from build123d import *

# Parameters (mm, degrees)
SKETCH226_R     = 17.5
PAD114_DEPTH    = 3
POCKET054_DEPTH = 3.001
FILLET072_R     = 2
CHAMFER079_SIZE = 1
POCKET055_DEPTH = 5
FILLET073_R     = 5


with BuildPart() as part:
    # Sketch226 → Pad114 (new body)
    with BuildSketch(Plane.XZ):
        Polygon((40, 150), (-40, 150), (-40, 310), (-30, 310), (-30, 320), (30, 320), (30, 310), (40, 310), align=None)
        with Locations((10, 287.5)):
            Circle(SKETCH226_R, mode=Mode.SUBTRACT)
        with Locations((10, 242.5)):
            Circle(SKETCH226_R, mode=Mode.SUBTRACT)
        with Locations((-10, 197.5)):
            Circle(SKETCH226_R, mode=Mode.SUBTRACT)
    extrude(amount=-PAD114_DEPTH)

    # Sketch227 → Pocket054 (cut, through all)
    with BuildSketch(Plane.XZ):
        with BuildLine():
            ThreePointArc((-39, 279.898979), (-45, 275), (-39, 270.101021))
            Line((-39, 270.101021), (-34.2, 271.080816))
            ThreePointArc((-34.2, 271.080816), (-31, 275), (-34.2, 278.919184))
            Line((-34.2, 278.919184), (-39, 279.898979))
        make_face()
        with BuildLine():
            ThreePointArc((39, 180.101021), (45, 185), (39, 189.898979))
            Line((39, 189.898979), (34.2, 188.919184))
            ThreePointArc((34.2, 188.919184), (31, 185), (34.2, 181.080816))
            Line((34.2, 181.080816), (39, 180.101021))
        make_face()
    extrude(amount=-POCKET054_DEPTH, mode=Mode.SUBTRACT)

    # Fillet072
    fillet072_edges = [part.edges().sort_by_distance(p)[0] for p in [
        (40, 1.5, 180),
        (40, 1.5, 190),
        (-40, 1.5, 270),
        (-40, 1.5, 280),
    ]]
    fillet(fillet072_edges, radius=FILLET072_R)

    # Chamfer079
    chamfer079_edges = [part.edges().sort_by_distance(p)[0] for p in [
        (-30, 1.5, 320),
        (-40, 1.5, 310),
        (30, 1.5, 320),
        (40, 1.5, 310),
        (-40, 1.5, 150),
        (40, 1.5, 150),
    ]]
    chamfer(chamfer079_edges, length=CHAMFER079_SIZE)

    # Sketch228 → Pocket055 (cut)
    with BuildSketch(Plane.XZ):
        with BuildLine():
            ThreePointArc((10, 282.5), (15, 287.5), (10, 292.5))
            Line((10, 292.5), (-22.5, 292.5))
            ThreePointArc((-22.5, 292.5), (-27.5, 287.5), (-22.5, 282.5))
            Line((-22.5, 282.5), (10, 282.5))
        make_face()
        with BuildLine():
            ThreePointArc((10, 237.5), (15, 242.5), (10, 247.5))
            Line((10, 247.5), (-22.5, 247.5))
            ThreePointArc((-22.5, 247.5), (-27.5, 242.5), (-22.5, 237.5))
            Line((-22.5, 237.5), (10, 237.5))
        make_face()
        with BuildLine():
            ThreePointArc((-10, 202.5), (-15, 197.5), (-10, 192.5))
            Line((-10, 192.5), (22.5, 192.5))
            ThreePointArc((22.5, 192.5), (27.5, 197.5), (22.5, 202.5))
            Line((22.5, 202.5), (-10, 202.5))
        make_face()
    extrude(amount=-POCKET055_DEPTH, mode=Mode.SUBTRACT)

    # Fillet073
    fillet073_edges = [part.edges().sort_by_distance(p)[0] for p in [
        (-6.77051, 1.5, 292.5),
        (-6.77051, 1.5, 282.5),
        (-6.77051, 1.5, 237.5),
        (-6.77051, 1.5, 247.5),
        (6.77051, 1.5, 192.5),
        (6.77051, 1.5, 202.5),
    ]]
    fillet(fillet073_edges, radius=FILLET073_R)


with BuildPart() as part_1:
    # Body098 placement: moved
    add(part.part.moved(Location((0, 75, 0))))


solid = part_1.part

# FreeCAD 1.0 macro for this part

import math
import FreeCAD as App
import Part
import Sketcher
from FreeCAD import Vector


def edges_at(feature, points):
    """Names of the edges that pass closest to the given points."""
    edges = feature.Shape.Edges
    near = lambda p: min(range(len(edges)), key=lambda i: edges[i].distToShape(Part.Vertex(*p))[0])
    return sorted({f"Edge{near(p) + 1}" for p in points})

doc = App.newDocument("Part")
params = doc.addObject("Spreadsheet::Sheet", "Params")
for row, (alias, value) in enumerate([
    ("sketch1_diameter", "35 mm"),
    ("sketch1_width", "80 mm"),
    ("sketch1_width2", "10 mm"),
    ("sketch1_height", "160 mm"),
    ("pad1_length", "3 mm"),
    ("sketch2_radius", "5 mm"),
    ("sketch2_radius2", "4.000001 mm"),
    ("fillet_radius", "2 mm"),
    ("chamfer_size", "1 mm"),
    ("sketch3_radius", "5 mm"),
    ("sketch3_width", "32.5 mm"),
    ("pocket2_length", "5 mm"),
    ("fillet2_radius", "5 mm"),
], start=1):
    params.set(f"A{row}", alias)
    params.set(f"B{row}", "=" + value)
    params.setAlias(f"B{row}", alias)

body = doc.addObject("PartDesign::Body", "Body")

# Sketch on XZ plane
sketch1 = body.newObject("Sketcher::SketchObject", "Sketch")
sketch1.AttachmentSupport = (doc.getObject("XZ_Plane"), [""])
sketch1.MapMode = "FlatFace"
sketch1.addGeometry([
    Part.LineSegment(Vector(-40, 150, 0), Vector(40, 150, 0)),  # 0
    Part.LineSegment(Vector(40, 150, 0), Vector(40, 310, 0)),  # 1
    Part.LineSegment(Vector(40, 310, 0), Vector(30, 310, 0)),  # 2
    Part.LineSegment(Vector(30, 310, 0), Vector(30, 320, 0)),  # 3
    Part.LineSegment(Vector(30, 320, 0), Vector(-30, 320, 0)),  # 4
    Part.LineSegment(Vector(-30, 320, 0), Vector(-30, 310, 0)),  # 5
    Part.LineSegment(Vector(-30, 310, 0), Vector(-40, 310, 0)),  # 6
    Part.LineSegment(Vector(-40, 310, 0), Vector(-40, 150, 0)),  # 7
    Part.Circle(Vector(-10, 198, 0), Vector(0, 0, 1), 18),  # 8
    Part.Circle(Vector(10, 242, 0), Vector(0, 0, 1), 18),  # 9
    Part.Circle(Vector(10, 288, 0), Vector(0, 0, 1), 18),  # 10
], False)
sketch1.addConstraint([
    Sketcher.Constraint("Coincident", 0, 2, 1, 1),
    Sketcher.Constraint("Coincident", 1, 2, 2, 1),
    Sketcher.Constraint("Coincident", 2, 2, 3, 1),
    Sketcher.Constraint("Coincident", 3, 2, 4, 1),
    Sketcher.Constraint("Coincident", 4, 2, 5, 1),
    Sketcher.Constraint("Coincident", 5, 2, 6, 1),
    Sketcher.Constraint("Coincident", 6, 2, 7, 1),
    Sketcher.Constraint("Coincident", 7, 2, 0, 1),
    Sketcher.Constraint("Horizontal", 0),
    Sketcher.Constraint("Vertical", 1),
    Sketcher.Constraint("Horizontal", 2),
    Sketcher.Constraint("Vertical", 3),
    Sketcher.Constraint("Horizontal", 4),
    Sketcher.Constraint("Vertical", 5),
    Sketcher.Constraint("Horizontal", 6),
    Sketcher.Constraint("Vertical", 7),
    Sketcher.Constraint("Equal", 8, 9),
    Sketcher.Constraint("Equal", 9, 10),
    Sketcher.Constraint("Symmetric", 2, 2, 5, 2, -2),
    Sketcher.Constraint("Vertical", 9, 3, 10, 3),
    Sketcher.Constraint("Equal", 2, 6),
    Sketcher.Constraint("Equal", 6, 3),
    Sketcher.Constraint("Diameter", 8, 35.0),
    Sketcher.Constraint("DistanceX", 0, 1, 0, 2, 80.0),
    Sketcher.Constraint("DistanceX", 2, 2, 2, 1, 10.0),
    Sketcher.Constraint("DistanceY", 1, 1, 1, 2, 160.0),
    Sketcher.Constraint("DistanceX", 8, 3, -1, 1, 10.0),
    Sketcher.Constraint("DistanceX", -1, 1, 9, 3, 10.0),
    Sketcher.Constraint("DistanceY", -1, 1, 0, 2, 150.0),
    Sketcher.Constraint("DistanceY", 8, 3, 9, 3, 45.0),
    Sketcher.Constraint("DistanceY", 9, 3, 10, 3, 45.0),
    Sketcher.Constraint("DistanceY", -1, 1, 8, 3, 197.5),
])
sketch1.setExpression("Constraints[22]", "Params.sketch1_diameter")
sketch1.setExpression("Constraints[23]", "Params.sketch1_width")
sketch1.setExpression("Constraints[24]", "Params.sketch1_width2")
sketch1.setExpression("Constraints[25]", "Params.sketch1_height")
pad1 = body.newObject("PartDesign::Pad", "Pad")
pad1.Profile = sketch1
pad1.setExpression("Length", "Params.pad1_length")
pad1.Reversed = True

# Sketch on XZ plane
sketch2 = body.newObject("Sketcher::SketchObject", "Sketch001")
sketch2.AttachmentSupport = (doc.getObject("XZ_Plane"), [""])
sketch2.MapMode = "FlatFace"
sketch2.addGeometry([
    Part.ArcOfCircle(Part.Circle(Vector(-40, 275, 0), Vector(0, 0, 1), 5), math.radians(78), math.radians(282)),  # 0
    Part.LineSegment(Vector(-39, 270.1, 0), Vector(-34.2, 271.1, 0)),  # 1
    Part.ArcOfCircle(Part.Circle(Vector(-35, 275, 0), Vector(0, 0, 1), 4), math.radians(-78), math.radians(78)),  # 2
    Part.LineSegment(Vector(-34.2, 278.9, 0), Vector(-39, 279.9, 0)),  # 3
    Part.ArcOfCircle(Part.Circle(Vector(40, 185, 0), Vector(0, 0, 1), 5), math.radians(-102), math.radians(102)),  # 4
    Part.LineSegment(Vector(39, 189.9, 0), Vector(34.2, 188.9, 0)),  # 5
    Part.ArcOfCircle(Part.Circle(Vector(35, 185, 0), Vector(0, 0, 1), 4), math.radians(102), math.radians(258)),  # 6
    Part.LineSegment(Vector(34.2, 181.1, 0), Vector(39, 180.1, 0)),  # 7
], False)
sketch2.addConstraint([
    Sketcher.Constraint("Tangent", 0, 2, 1, 1),
    Sketcher.Constraint("Tangent", 1, 2, 2, 1),
    Sketcher.Constraint("Tangent", 2, 2, 3, 1),
    Sketcher.Constraint("Tangent", 3, 2, 0, 1),
    Sketcher.Constraint("Tangent", 4, 2, 5, 1),
    Sketcher.Constraint("Tangent", 5, 2, 6, 1),
    Sketcher.Constraint("Tangent", 6, 2, 7, 1),
    Sketcher.Constraint("Tangent", 7, 2, 4, 1),
    Sketcher.Constraint("Equal", 0, 4),
    Sketcher.Constraint("Equal", 2, 6),
    Sketcher.Constraint("Parallel", 1, 5),
    Sketcher.Constraint("Parallel", 3, 7),
    Sketcher.Constraint("Horizontal", 0, 3, 2, 3),
    Sketcher.Constraint("Radius", 0, 5.0),
    Sketcher.Constraint("Radius", 2, 4.000001),
    Sketcher.Constraint("DistanceX", 0, 3, -1, 1, 40.0),
    Sketcher.Constraint("DistanceY", -1, 1, 0, 3, 275.0),
    Sketcher.Constraint("DistanceX", 2, 3, -1, 1, 35.000001),
    Sketcher.Constraint("DistanceX", -1, 1, 4, 3, 40.0),
    Sketcher.Constraint("DistanceY", -1, 1, 4, 3, 185.0),
])
sketch2.setExpression("Constraints[13]", "Params.sketch2_radius")
sketch2.setExpression("Constraints[14]", "Params.sketch2_radius2")
pocket1 = body.newObject("PartDesign::Pocket", "Pocket")
pocket1.Profile = sketch2
pocket1.Type = "ThroughAll"
doc.recompute()

fillet = body.newObject("PartDesign::Fillet", "Fillet")
fillet.Base = (pocket1, edges_at(pocket1, [
    (40, 1.5, 180),
    (40, 1.5, 190),
    (-40, 1.5, 270),
    (-40, 1.5, 280),
]))
fillet.setExpression("Radius", "Params.fillet_radius")
doc.recompute()

chamfer = body.newObject("PartDesign::Chamfer", "Chamfer")
chamfer.Base = (fillet, edges_at(fillet, [
    (-30, 1.5, 320),
    (-40, 1.5, 310),
    (30, 1.5, 320),
    (40, 1.5, 310),
    (-40, 1.5, 150),
    (40, 1.5, 150),
]))
chamfer.setExpression("Size", "Params.chamfer_size")

# Sketch on XZ plane
sketch3 = body.newObject("Sketcher::SketchObject", "Sketch002")
sketch3.AttachmentSupport = (doc.getObject("XZ_Plane"), [""])
sketch3.MapMode = "FlatFace"
sketch3.addGeometry([
    Part.ArcOfCircle(Part.Circle(Vector(10, 288, 0), Vector(0, 0, 1), 5), math.radians(-90), math.radians(90)),  # 0
    Part.LineSegment(Vector(10, 292, 0), Vector(-22, 292, 0)),  # 1
    Part.ArcOfCircle(Part.Circle(Vector(-22, 288, 0), Vector(0, 0, 1), 5), math.radians(90), math.radians(270)),  # 2
    Part.LineSegment(Vector(-22, 282, 0), Vector(10, 282, 0)),  # 3
    Part.ArcOfCircle(Part.Circle(Vector(10, 242, 0), Vector(0, 0, 1), 5), math.radians(-90), math.radians(90)),  # 4
    Part.LineSegment(Vector(10, 248, 0), Vector(-22, 248, 0)),  # 5
    Part.ArcOfCircle(Part.Circle(Vector(-22, 242, 0), Vector(0, 0, 1), 5), math.radians(90), math.radians(270)),  # 6
    Part.LineSegment(Vector(-22, 238, 0), Vector(10, 238, 0)),  # 7
    Part.ArcOfCircle(Part.Circle(Vector(-10, 198, 0), Vector(0, 0, 1), 5), math.radians(90), math.radians(270)),  # 8
    Part.LineSegment(Vector(-10, 192, 0), Vector(22, 192, 0)),  # 9
    Part.ArcOfCircle(Part.Circle(Vector(22, 198, 0), Vector(0, 0, 1), 5), math.radians(-90), math.radians(90)),  # 10
    Part.LineSegment(Vector(22, 202, 0), Vector(-10, 202, 0)),  # 11
], False)
sketch3.addConstraint([
    Sketcher.Constraint("Tangent", 0, 2, 1, 1),
    Sketcher.Constraint("Tangent", 1, 2, 2, 1),
    Sketcher.Constraint("Tangent", 2, 2, 3, 1),
    Sketcher.Constraint("Tangent", 3, 2, 0, 1),
    Sketcher.Constraint("Tangent", 4, 2, 5, 1),
    Sketcher.Constraint("Tangent", 5, 2, 6, 1),
    Sketcher.Constraint("Tangent", 6, 2, 7, 1),
    Sketcher.Constraint("Tangent", 7, 2, 4, 1),
    Sketcher.Constraint("Tangent", 8, 2, 9, 1),
    Sketcher.Constraint("Tangent", 9, 2, 10, 1),
    Sketcher.Constraint("Tangent", 10, 2, 11, 1),
    Sketcher.Constraint("Tangent", 11, 2, 8, 1),
    Sketcher.Constraint("Horizontal", 1),
    Sketcher.Constraint("Horizontal", 3),
    Sketcher.Constraint("Horizontal", 5),
    Sketcher.Constraint("Horizontal", 7),
    Sketcher.Constraint("Horizontal", 9),
    Sketcher.Constraint("Horizontal", 11),
    Sketcher.Constraint("Equal", 2, 4),
    Sketcher.Constraint("Equal", 6, 8),
    Sketcher.Constraint("Vertical", 0, 3, 4, 3),
    Sketcher.Constraint("Vertical", 2, 3, 6, 3),
    Sketcher.Constraint("Equal", 7, 9),
    Sketcher.Constraint("Radius", 0, 5.0),
    Sketcher.Constraint("DistanceX", 1, 2, 1, 1, 32.5),
    Sketcher.Constraint("DistanceX", -1, 1, 0, 3, 10.0),
    Sketcher.Constraint("DistanceX", 8, 3, -1, 1, 10.0),
    Sketcher.Constraint("DistanceY", 4, 3, 0, 3, 45.0),
    Sketcher.Constraint("DistanceY", 8, 3, 6, 3, 45.0),
    Sketcher.Constraint("DistanceY", -1, 1, 0, 3, 287.5),
])
sketch3.setExpression("Constraints[23]", "Params.sketch3_radius")
sketch3.setExpression("Constraints[24]", "Params.sketch3_width")
pocket2 = body.newObject("PartDesign::Pocket", "Pocket001")
pocket2.Profile = sketch3
pocket2.setExpression("Length", "Params.pocket2_length")
doc.recompute()

fillet2 = body.newObject("PartDesign::Fillet", "Fillet001")
fillet2.Base = (pocket2, edges_at(pocket2, [
    (-6.771, 1.5, 292.5),
    (-6.771, 1.5, 282.5),
    (-6.771, 1.5, 237.5),
    (-6.771, 1.5, 247.5),
    (6.771, 1.5, 192.5),
    (6.771, 1.5, 202.5),
]))
fillet2.setExpression("Radius", "Params.fillet2_radius")
body2 = doc.addObject("PartDesign::Body", "Body001")
doc.recompute()

body.Placement = App.Placement(Vector(0, 75, 0), App.Rotation(Vector(0, 0, 1), 0))
boolean = body2.newObject("PartDesign::Boolean", "Boolean")
boolean.Type = "Fuse"
boolean.addObjects([body])

doc.recompute()
